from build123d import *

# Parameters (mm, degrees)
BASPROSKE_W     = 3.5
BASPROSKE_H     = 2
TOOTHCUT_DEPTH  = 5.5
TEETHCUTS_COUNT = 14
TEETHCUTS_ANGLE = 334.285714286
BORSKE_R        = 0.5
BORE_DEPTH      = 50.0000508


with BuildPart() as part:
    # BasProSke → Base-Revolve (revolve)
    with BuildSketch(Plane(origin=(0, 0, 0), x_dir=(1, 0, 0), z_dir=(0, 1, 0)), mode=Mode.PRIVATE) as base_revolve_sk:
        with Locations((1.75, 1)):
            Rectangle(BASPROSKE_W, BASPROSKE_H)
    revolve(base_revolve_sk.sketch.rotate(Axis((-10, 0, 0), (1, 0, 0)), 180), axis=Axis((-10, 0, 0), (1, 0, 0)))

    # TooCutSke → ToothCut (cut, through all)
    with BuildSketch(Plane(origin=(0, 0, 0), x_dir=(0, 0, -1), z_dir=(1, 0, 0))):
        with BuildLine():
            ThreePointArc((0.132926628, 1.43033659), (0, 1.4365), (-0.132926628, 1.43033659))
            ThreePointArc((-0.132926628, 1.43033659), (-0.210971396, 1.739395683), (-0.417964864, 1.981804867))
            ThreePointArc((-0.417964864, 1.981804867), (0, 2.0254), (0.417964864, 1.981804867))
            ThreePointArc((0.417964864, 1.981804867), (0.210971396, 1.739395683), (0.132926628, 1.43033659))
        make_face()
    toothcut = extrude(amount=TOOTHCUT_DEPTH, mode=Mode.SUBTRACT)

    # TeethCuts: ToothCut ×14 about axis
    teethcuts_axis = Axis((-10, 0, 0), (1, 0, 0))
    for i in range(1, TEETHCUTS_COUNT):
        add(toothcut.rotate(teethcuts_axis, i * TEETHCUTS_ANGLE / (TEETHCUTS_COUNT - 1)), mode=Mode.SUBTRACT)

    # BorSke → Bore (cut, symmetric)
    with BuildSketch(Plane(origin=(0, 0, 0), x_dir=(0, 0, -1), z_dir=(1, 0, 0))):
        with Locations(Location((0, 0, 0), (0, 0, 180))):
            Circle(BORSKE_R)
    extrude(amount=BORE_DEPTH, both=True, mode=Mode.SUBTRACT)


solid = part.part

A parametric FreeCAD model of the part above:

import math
import FreeCAD as App
import Part
import Sketcher
from FreeCAD import Vector
Q = App.Units.Quantity


def add_polygon(sketch, points):
    """Adds a closed chain of lines whose ends are joined by coincident constraints."""
    first, n = sketch.GeometryCount, len(points)
    for a, b in zip(points, points[1:] + points[:1]):
        sketch.addGeometry(Part.LineSegment(App.Vector(*a, 0), App.Vector(*b, 0)), False)
    for i in range(n):
        sketch.addConstraint(Sketcher.Constraint("Coincident", first + i, 2, first + (i + 1) % n, 1))

doc = App.newDocument("Part")
body = doc.addObject("PartDesign::Body", "Body")

# Sketch on XZ plane
sketch1 = body.newObject("Sketcher::SketchObject", "Sketch")
sketch1.AttachmentSupport = (doc.getObject("XZ_Plane"), [""])
sketch1.MapMode = "FlatFace"
add_polygon(sketch1, [(0, -2), (0, 0), (3.5, 0), (3.5, -2)])  # lines 0-3
sketch1.addConstraint(Sketcher.Constraint("Vertical", 0))
sketch1.addConstraint(Sketcher.Constraint("Horizontal", 1))
sketch1.addConstraint(Sketcher.Constraint("Vertical", 2))
sketch1.addConstraint(Sketcher.Constraint("Horizontal", 3))
sketch1.addConstraint(Sketcher.Constraint("Coincident", 0, 2, -1, 1))
sketch1.addConstraint(Sketcher.Constraint("DistanceY", 0, 1, 0, 2, Q("2 mm")))
sketch1.addConstraint(Sketcher.Constraint("DistanceX", 1, 1, 1, 2, Q("3.5 mm")))
revolution = body.newObject("PartDesign::Revolution", "Revolution")
revolution.Profile = sketch1
revolution.ReferenceAxis = (sketch1, ["H_Axis"])
revolution.Angle = 360

# Sketch on YZ plane
sketch2 = body.newObject("Sketcher::SketchObject", "Sketch001")
sketch2.AttachmentSupport = (doc.getObject("YZ_Plane"), [""])
sketch2.MapMode = "FlatFace"
sketch2.addGeometry(Part.ArcOfCircle(Part.Circle(Vector(0, 0, 0), Vector(0, 0, 1), 1.44), math.radians(-5.31), math.radians(5.31)), False)
sketch2.addGeometry(Part.ArcOfCircle(Part.Circle(Vector(1.42, -0.83, 0), Vector(0, 0, 1), 0.7), math.radians(36), math.radians(89)), False)
sketch2.addGeometry(Part.ArcOfCircle(Part.Circle(Vector(0, 0, 0), Vector(0, 0, 1), 2.03), math.radians(-12), math.radians(12)), False)
sketch2.addGeometry(Part.ArcOfCircle(Part.Circle(Vector(1.42, 0.83, 0), Vector(0, 0, 1), 0.7), math.radians(-89), math.radians(-36)), False)
sketch2.addConstraint(Sketcher.Constraint("Coincident", 0, 1, 1, 2))
sketch2.addConstraint(Sketcher.Constraint("Coincident", 1, 1, 2, 1))
sketch2.addConstraint(Sketcher.Constraint("Coincident", 2, 2, 3, 2))
sketch2.addConstraint(Sketcher.Constraint("Coincident", 3, 1, 0, 2))
sketch2.addConstraint(Sketcher.Constraint("Coincident", 0, 3, -1, 1))
sketch2.addConstraint(Sketcher.Constraint("Coincident", 2, 3, -1, 1))
sketch2.addConstraint(Sketcher.Constraint("Equal", 1, 3))
sketch2.addConstraint(Sketcher.Constraint("Symmetric", 1, 3, 3, 3, -1))
sketch2.addConstraint(Sketcher.Constraint("Radius", 1, Q("0.7 mm")))
sketch2.addConstraint(Sketcher.Constraint("Radius", 0, Q("1.4365 mm")))
sketch2.addConstraint(Sketcher.Constraint("Radius", 2, Q("2.0254 mm")))
sketch2.addConstraint(Sketcher.Constraint("DistanceX", -1, 1, 1, 3, Q("1.417981 mm")))
sketch2.addConstraint(Sketcher.Constraint("DistanceX", 0, 1, 1, 1, Q("0.551468 mm")))
pocket1 = body.newObject("PartDesign::Pocket", "Pocket")
pocket1.Profile = sketch2
pocket1.Type = "ThroughAll"
pocket1.Reversed = True
doc.recompute()

polarpattern = body.newObject("PartDesign::PolarPattern", "PolarPattern")
polarpattern.Originals = [pocket1]
polarpattern.Axis = (doc.getObject("X_Axis"), [""])
polarpattern.Angle = 360
polarpattern.Occurrences = 14
body.Tip = polarpattern

# Sketch on YZ plane
sketch3 = body.newObject("Sketcher::SketchObject", "Sketch002")
sketch3.AttachmentSupport = (doc.getObject("YZ_Plane"), [""])
sketch3.MapMode = "FlatFace"
sketch3.addGeometry(Part.Circle(Vector(0, 0, 0), Vector(0, 0, 1), 0.5), False)
sketch3.addConstraint(Sketcher.Constraint("Coincident", 0, 3, -1, 1))
sketch3.addConstraint(Sketcher.Constraint("Diameter", 0, Q("1 mm")))
pocket2 = body.newObject("PartDesign::Pocket", "Pocket001")
pocket2.Profile = sketch3
pocket2.Length = 100.000102
pocket2.Midplane = True

doc.recompute()
